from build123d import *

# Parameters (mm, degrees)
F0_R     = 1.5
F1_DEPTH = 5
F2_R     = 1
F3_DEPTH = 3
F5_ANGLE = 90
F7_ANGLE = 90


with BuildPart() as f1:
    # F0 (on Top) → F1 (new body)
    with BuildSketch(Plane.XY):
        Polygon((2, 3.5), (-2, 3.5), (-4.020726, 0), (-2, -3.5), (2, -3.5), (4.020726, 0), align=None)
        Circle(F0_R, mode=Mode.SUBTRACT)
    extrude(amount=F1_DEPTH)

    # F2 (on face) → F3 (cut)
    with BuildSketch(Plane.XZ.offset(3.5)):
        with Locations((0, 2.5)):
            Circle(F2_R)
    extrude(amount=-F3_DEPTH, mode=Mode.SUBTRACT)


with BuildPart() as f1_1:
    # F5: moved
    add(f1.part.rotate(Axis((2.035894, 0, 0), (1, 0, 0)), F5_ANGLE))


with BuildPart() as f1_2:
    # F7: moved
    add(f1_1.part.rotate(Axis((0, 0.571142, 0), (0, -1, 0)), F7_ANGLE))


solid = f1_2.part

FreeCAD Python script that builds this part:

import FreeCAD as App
import Part
import Sketcher
from FreeCAD import Vector
Q = App.Units.Quantity


def add_polygon(sketch, points):
    """Adds a closed chain of lines whose ends are joined by coincident constraints."""
    first, n = sketch.GeometryCount, len(points)
    for a, b in zip(points, points[1:] + points[:1]):
        sketch.addGeometry(Part.LineSegment(App.Vector(*a, 0), App.Vector(*b, 0)), False)
    for i in range(n):
        sketch.addConstraint(Sketcher.Constraint("Coincident", first + i, 2, first + (i + 1) % n, 1))

doc = App.newDocument("Part")
params = doc.addObject("Spreadsheet::Sheet", "Params")
for row, (alias, value) in enumerate([
    ("sketch1_diameter", "3 mm"),
    ("sketch1_width", "4 mm"),
    ("pad1_length", "5 mm"),
    ("sketch2_diameter", "2 mm"),
    ("pocket1_length", "3 mm"),
], start=1):
    params.set(f"A{row}", alias)
    params.set(f"B{row}", "=" + value)
    params.setAlias(f"B{row}", alias)

body = doc.addObject("PartDesign::Body", "Body")

# Sketch on XY plane
sketch1 = body.newObject("Sketcher::SketchObject", "Sketch")
sketch1.AttachmentSupport = (doc.getObject("XY_Plane"), [""])
sketch1.MapMode = "FlatFace"
add_polygon(sketch1, [(2, 3.5), (-2, 3.5), (-4.020726, 0), (-2, -3.5), (2, -3.5), (4.020726, 0)])  # lines 0-5
sketch1.addGeometry(Part.Circle(Vector(0, 0, 0), Vector(0, 0, 1), 1.5), False)  # 6
sketch1.addConstraint(Sketcher.Constraint("Horizontal", 0))
sketch1.addConstraint(Sketcher.Constraint("Horizontal", 3))
sketch1.addConstraint(Sketcher.Constraint("Coincident", 6, 3, -1, 1))
sketch1.addConstraint(Sketcher.Constraint("Symmetric", 0, 2, 3, 2, -1, 1))
sketch1.addConstraint(Sketcher.Constraint("Symmetric", 1, 2, 4, 2, -1, 1))
sketch1.addConstraint(Sketcher.Constraint("PointOnObject", 1, 2, -1))
sketch1.addConstraint(Sketcher.Constraint("Parallel", 2, 5))
sketch1.addConstraint(Sketcher.Constraint("Vertical", 0, 2, 2, 2))
sketch1.addConstraint(Sketcher.Constraint("Diameter", 6, Q("3 mm")))
sketch1.addConstraint(Sketcher.Constraint("DistanceX", 0, 2, 0, 1, Q("4 mm")))
sketch1.addConstraint(Sketcher.Constraint("Angle", 1, Q("-120.000001 deg")))
sketch1.addConstraint(Sketcher.Constraint("DistanceY", 2, 2, 0, 2, Q("7 mm")))
sketch1.setExpression("Constraints[14]", "Params.sketch1_diameter")
sketch1.setExpression("Constraints[15]", "Params.sketch1_width")
pad1 = body.newObject("PartDesign::Pad", "Pad")
pad1.Profile = sketch1
pad1.setExpression("Length", "Params.pad1_length")

# Sketch on XZ plane
sketch2 = body.newObject("Sketcher::SketchObject", "Sketch001")
sketch2.AttachmentSupport = (doc.getObject("XZ_Plane"), [""])
sketch2.MapMode = "FlatFace"
sketch2.AttachmentOffset = App.Placement(Vector(0, 0, 3.5), App.Rotation())
sketch2.addGeometry(Part.Circle(Vector(0, 2.5, 0), Vector(0, 0, 1), 1), False)
sketch2.addConstraint(Sketcher.Constraint("PointOnObject", 0, 3, -2))
sketch2.addConstraint(Sketcher.Constraint("Diameter", 0, Q("2 mm")))
sketch2.addConstraint(Sketcher.Constraint("DistanceY", -1, 1, 0, 3, Q("2.5 mm")))
sketch2.setExpression("Constraints[1]", "Params.sketch2_diameter")
pocket1 = body.newObject("PartDesign::Pocket", "Pocket")
pocket1.Profile = sketch2
pocket1.setExpression("Length", "Params.pocket1_length")
body2 = doc.addObject("PartDesign::Body", "Body001")
doc.recompute()

body.Placement = App.Placement(Vector(0, 0, 0), App.Rotation(Vector(1, 0, 0), 90))
boolean = body2.newObject("PartDesign::Boolean", "Boolean")
boolean.Type = "Fuse"
boolean.addObjects([body])
body3 = doc.addObject("PartDesign::Body", "Body002")
doc.recompute()

body2.Placement = App.Placement(Vector(0, 0, 0), App.Rotation(Vector(0, -1, 0), 90))
boolean2 = body3.newObject("PartDesign::Boolean", "Boolean001")
boolean2.Type = "Fuse"
boolean2.addObjects([body2])

doc.recompute()
